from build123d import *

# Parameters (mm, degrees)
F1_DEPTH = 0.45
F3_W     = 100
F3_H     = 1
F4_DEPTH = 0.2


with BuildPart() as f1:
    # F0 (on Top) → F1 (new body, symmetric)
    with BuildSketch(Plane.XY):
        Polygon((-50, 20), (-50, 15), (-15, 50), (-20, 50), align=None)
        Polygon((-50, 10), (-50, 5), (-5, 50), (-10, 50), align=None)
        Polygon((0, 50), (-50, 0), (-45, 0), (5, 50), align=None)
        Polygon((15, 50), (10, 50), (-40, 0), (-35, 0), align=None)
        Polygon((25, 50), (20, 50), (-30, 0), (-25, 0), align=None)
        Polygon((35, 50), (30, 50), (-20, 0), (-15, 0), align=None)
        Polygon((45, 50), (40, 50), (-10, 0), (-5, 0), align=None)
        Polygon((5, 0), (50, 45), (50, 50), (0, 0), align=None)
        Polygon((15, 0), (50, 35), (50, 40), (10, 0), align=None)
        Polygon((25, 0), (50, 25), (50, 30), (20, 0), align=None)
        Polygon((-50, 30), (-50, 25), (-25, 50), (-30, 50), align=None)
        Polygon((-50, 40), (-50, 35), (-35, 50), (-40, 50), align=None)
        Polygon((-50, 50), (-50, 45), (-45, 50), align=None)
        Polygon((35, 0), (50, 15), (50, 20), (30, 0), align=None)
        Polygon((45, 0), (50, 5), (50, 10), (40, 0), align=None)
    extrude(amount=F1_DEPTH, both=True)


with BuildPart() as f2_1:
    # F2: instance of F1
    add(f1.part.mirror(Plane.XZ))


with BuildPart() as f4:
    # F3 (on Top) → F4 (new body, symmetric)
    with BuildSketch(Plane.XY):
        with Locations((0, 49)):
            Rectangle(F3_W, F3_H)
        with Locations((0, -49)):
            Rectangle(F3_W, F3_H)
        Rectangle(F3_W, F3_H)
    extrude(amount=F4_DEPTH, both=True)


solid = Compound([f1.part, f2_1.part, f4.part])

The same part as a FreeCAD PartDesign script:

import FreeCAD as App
import Part
import Sketcher

V = App.Vector


def add_polygon(sketch, points):
    """Adds a closed chain of lines whose ends are joined by coincident constraints."""
    first, n = sketch.GeometryCount, len(points)
    for a, b in zip(points, points[1:] + points[:1]):
        sketch.addGeometry(Part.LineSegment(App.Vector(*a, 0), App.Vector(*b, 0)), False)
    for i in range(n):
        sketch.addConstraint(Sketcher.Constraint("Coincident", first + i, 2, first + (i + 1) % n, 1))

doc = App.newDocument("Part")
params = doc.addObject("Spreadsheet::Sheet", "Params")
for row, (alias, value) in enumerate([
    ("sketch1_width", "5 mm"),
    ("pad1_length", "0.9 mm"),
    ("sketch2_width", "100 mm"),
    ("sketch2_height", "1 mm"),
    ("pad2_length", "0.4 mm"),
], start=1):
    params.set(f"A{row}", alias)
    params.set(f"B{row}", "=" + value)
    params.setAlias(f"B{row}", alias)

body = doc.addObject("PartDesign::Body", "Body")
body.AllowCompound = True

# Sketch on XY plane
sketch1 = doc.addObject("Sketcher::SketchObject", "Sketch")
body.addObject(sketch1)
sketch1.AttachmentSupport = (doc.XY_Plane, [""])
sketch1.MapMode = "FlatFace"
add_polygon(sketch1, [(-50, 20), (-50, 15), (-15, 50), (-20, 50)])  # lines 0-3
add_polygon(sketch1, [(-50, 10), (-50, 5), (-5, 50), (-10, 50)])  # lines 4-7
add_polygon(sketch1, [(0, 50), (-50, 0), (-45, 0), (5, 50)])  # lines 8-11
add_polygon(sketch1, [(15, 50), (10, 50), (-40, 0), (-35, 0)])  # lines 12-15
add_polygon(sketch1, [(25, 50), (20, 50), (-30, 0), (-25, 0)])  # lines 16-19
add_polygon(sketch1, [(35, 50), (30, 50), (-20, 0), (-15, 0)])  # lines 20-23
add_polygon(sketch1, [(45, 50), (40, 50), (-10, 0), (-5, 0)])  # lines 24-27
add_polygon(sketch1, [(5, 0), (50, 45), (50, 50), (0, 0)])  # lines 28-31
add_polygon(sketch1, [(15, 0), (50, 35), (50, 40), (10, 0)])  # lines 32-35
add_polygon(sketch1, [(25, 0), (50, 25), (50, 30), (20, 0)])  # lines 36-39
add_polygon(sketch1, [(-50, 30), (-50, 25), (-25, 50), (-30, 50)])  # lines 40-43
add_polygon(sketch1, [(-50, 40), (-50, 35), (-35, 50), (-40, 50)])  # lines 44-47
add_polygon(sketch1, [(-50, 50), (-50, 45), (-45, 50)])  # lines 48-50
add_polygon(sketch1, [(35, 0), (50, 15), (50, 20), (30, 0)])  # lines 51-54
add_polygon(sketch1, [(45, 0), (50, 5), (50, 10), (40, 0)])  # lines 55-58
sketch1.addConstraint(Sketcher.Constraint("Vertical", 0))
sketch1.addConstraint(Sketcher.Constraint("Horizontal", 2))
sketch1.addConstraint(Sketcher.Constraint("Vertical", 4))
sketch1.addConstraint(Sketcher.Constraint("Horizontal", 6))
sketch1.addConstraint(Sketcher.Constraint("Horizontal", 9))
sketch1.addConstraint(Sketcher.Constraint("Horizontal", 11))
sketch1.addConstraint(Sketcher.Constraint("Horizontal", 12))
sketch1.addConstraint(Sketcher.Constraint("Horizontal", 14))
sketch1.addConstraint(Sketcher.Constraint("Horizontal", 16))
sketch1.addConstraint(Sketcher.Constraint("Horizontal", 18))
sketch1.addConstraint(Sketcher.Constraint("Horizontal", 20))
sketch1.addConstraint(Sketcher.Constraint("Horizontal", 22))
sketch1.addConstraint(Sketcher.Constraint("Horizontal", 24))
sketch1.addConstraint(Sketcher.Constraint("Horizontal", 26))
sketch1.addConstraint(Sketcher.Constraint("Vertical", 29))
sketch1.addConstraint(Sketcher.Constraint("Horizontal", 31))
sketch1.addConstraint(Sketcher.Constraint("Vertical", 33))
sketch1.addConstraint(Sketcher.Constraint("Horizontal", 35))
sketch1.addConstraint(Sketcher.Constraint("Vertical", 37))
sketch1.addConstraint(Sketcher.Constraint("Horizontal", 39))
sketch1.addConstraint(Sketcher.Constraint("Vertical", 40))
sketch1.addConstraint(Sketcher.Constraint("Horizontal", 42))
sketch1.addConstraint(Sketcher.Constraint("Vertical", 44))
sketch1.addConstraint(Sketcher.Constraint("Horizontal", 46))
sketch1.addConstraint(Sketcher.Constraint("Vertical", 48))
sketch1.addConstraint(Sketcher.Constraint("Horizontal", 50))
sketch1.addConstraint(Sketcher.Constraint("Vertical", 52))
sketch1.addConstraint(Sketcher.Constraint("Horizontal", 54))
sketch1.addConstraint(Sketcher.Constraint("Vertical", 56))
sketch1.addConstraint(Sketcher.Constraint("Horizontal", 58))
sketch1.addConstraint(Sketcher.Constraint("Coincident", 30, 2, -1, 1))
sketch1.addConstraint(Sketcher.Constraint("Symmetric", 26, 2, 31, 2, -1, 1))
sketch1.addConstraint(Sketcher.Constraint("Symmetric", 25, 2, 34, 2, -1, 1))
sketch1.addConstraint(Sketcher.Constraint("Symmetric", 22, 2, 35, 2, -1, 1))
sketch1.addConstraint(Sketcher.Constraint("Symmetric", 21, 2, 38, 2, -1, 1))
sketch1.addConstraint(Sketcher.Constraint("Symmetric", 18, 2, 39, 2, -1, 1))
sketch1.addConstraint(Sketcher.Constraint("Symmetric", 17, 2, 53, 2, -1, 1))
sketch1.addConstraint(Sketcher.Constraint("Symmetric", 14, 2, 54, 2, -1, 1))
sketch1.addConstraint(Sketcher.Constraint("Symmetric", 13, 2, 57, 2, -1, 1))
sketch1.addConstraint(Sketcher.Constraint("Symmetric", 9, 2, 58, 2, -1, 1))
sketch1.addConstraint(Sketcher.Constraint("Symmetric", 5, 2, 10, 2, -2))
sketch1.addConstraint(Sketcher.Constraint("Symmetric", 6, 2, 12, 2, -2))
sketch1.addConstraint(Sketcher.Constraint("Symmetric", 1, 2, 15, 2, -2))
sketch1.addConstraint(Sketcher.Constraint("Symmetric", 2, 2, 16, 2, -2))
sketch1.addConstraint(Sketcher.Constraint("Symmetric", 36, 2, 40, 2, -2))
sketch1.addConstraint(Sketcher.Constraint("Symmetric", 19, 2, 41, 2, -2))
sketch1.addConstraint(Sketcher.Constraint("Symmetric", 20, 2, 42, 2, -2))
sketch1.addConstraint(Sketcher.Constraint("Symmetric", 32, 2, 44, 2, -2))
sketch1.addConstraint(Sketcher.Constraint("Symmetric", 23, 2, 45, 2, -2))
sketch1.addConstraint(Sketcher.Constraint("Symmetric", 24, 2, 46, 2, -2))
sketch1.addConstraint(Sketcher.Constraint("Symmetric", 28, 2, 48, 2, -2))
sketch1.addConstraint(Sketcher.Constraint("Symmetric", 27, 2, 49, 2, -2))
sketch1.addConstraint(Sketcher.Constraint("Symmetric", 0, 2, 51, 2, -2))
sketch1.addConstraint(Sketcher.Constraint("Symmetric", 4, 2, 55, 2, -2))
sketch1.addConstraint(Sketcher.Constraint("PointOnObject", 11, 2, -2))
sketch1.addConstraint(Sketcher.Constraint("Parallel", 1, 3))
sketch1.addConstraint(Sketcher.Constraint("Parallel", 3, 5))
sketch1.addConstraint(Sketcher.Constraint("Parallel", 5, 7))
sketch1.addConstraint(Sketcher.Constraint("Parallel", 7, 8))
sketch1.addConstraint(Sketcher.Constraint("Parallel", 8, 10))
sketch1.addConstraint(Sketcher.Constraint("Parallel", 10, 13))
sketch1.addConstraint(Sketcher.Constraint("Parallel", 13, 15))
sketch1.addConstraint(Sketcher.Constraint("Parallel", 15, 17))
sketch1.addConstraint(Sketcher.Constraint("Parallel", 17, 19))
sketch1.addConstraint(Sketcher.Constraint("Parallel", 19, 21))
sketch1.addConstraint(Sketcher.Constraint("Parallel", 21, 23))
sketch1.addConstraint(Sketcher.Constraint("Parallel", 23, 25))
sketch1.addConstraint(Sketcher.Constraint("Parallel", 25, 27))
sketch1.addConstraint(Sketcher.Constraint("Parallel", 27, 28))
sketch1.addConstraint(Sketcher.Constraint("Parallel", 28, 30))
sketch1.addConstraint(Sketcher.Constraint("Parallel", 30, 32))
sketch1.addConstraint(Sketcher.Constraint("Parallel", 32, 34))
sketch1.addConstraint(Sketcher.Constraint("Parallel", 34, 36))
sketch1.addConstraint(Sketcher.Constraint("Parallel", 36, 38))
sketch1.addConstraint(Sketcher.Constraint("Parallel", 38, 41))
sketch1.addConstraint(Sketcher.Constraint("Parallel", 41, 43))
sketch1.addConstraint(Sketcher.Constraint("Parallel", 43, 45))
sketch1.addConstraint(Sketcher.Constraint("Parallel", 45, 47))
sketch1.addConstraint(Sketcher.Constraint("Parallel", 47, 49))
sketch1.addConstraint(Sketcher.Constraint("Parallel", 49, 51))
sketch1.addConstraint(Sketcher.Constraint("Parallel", 51, 53))
sketch1.addConstraint(Sketcher.Constraint("Parallel", 53, 55))
sketch1.addConstraint(Sketcher.Constraint("Parallel", 55, 57))
sketch1.addConstraint(Sketcher.Constraint("Vertical", 2, 2, 21, 2))
sketch1.addConstraint(Sketcher.Constraint("Vertical", 1, 2, 22, 2))
sketch1.addConstraint(Sketcher.Constraint("Vertical", 6, 2, 25, 2))
sketch1.addConstraint(Sketcher.Constraint("Vertical", 5, 2, 26, 2))
sketch1.addConstraint(Sketcher.Constraint("Vertical", 19, 2, 39, 2))
sketch1.addConstraint(Sketcher.Constraint("Equal", 2, 6))
sketch1.addConstraint(Sketcher.Constraint("Equal", 6, 9))
sketch1.addConstraint(Sketcher.Constraint("Equal", 11, 12))
sketch1.addConstraint(Sketcher.Constraint("Equal", 14, 16))
sketch1.addConstraint(Sketcher.Constraint("Equal", 58, 0))
sketch1.addConstraint(Sketcher.Constraint("DistanceX", 2, 2, 2, 1, 5.0))
sketch1.setExpression("Constraints[152]", "Params.sketch1_width")
pad1 = doc.addObject("PartDesign::Pad", "Pad")
body.addObject(pad1)
pad1.Profile = sketch1
pad1.setExpression("Length", "Params.pad1_length")
pad1.Midplane = True
body2 = doc.addObject("PartDesign::Body", "Body001")
body2.AllowCompound = True
doc.recompute()

mirroring = doc.addObject("Part::Mirroring", "Mirroring")
mirroring.Source = body
mirroring.Base = V(0, 0, 0)
mirroring.Normal = V(0, -1, 0)
body2.BaseFeature = mirroring
doc.recompute()
body3 = doc.addObject("PartDesign::Body", "Body002")
body3.AllowCompound = True

# Sketch on XY plane
sketch2 = doc.addObject("Sketcher::SketchObject", "Sketch001")
body3.addObject(sketch2)
sketch2.AttachmentSupport = (doc.getObject("XY_Plane002"), [""])
sketch2.MapMode = "FlatFace"
add_polygon(sketch2, [(-50, 49.5), (-50, 48.5), (50, 48.5), (50, 49.5)])  # lines 0-3
add_polygon(sketch2, [(-50, -48.5), (-50, -49.5), (50, -49.5), (50, -48.5)])  # lines 4-7
add_polygon(sketch2, [(-50, 0.5), (-50, -0.5), (50, -0.5), (50, 0.5)])  # lines 8-11
sketch2.addConstraint(Sketcher.Constraint("Vertical", 0))
sketch2.addConstraint(Sketcher.Constraint("Horizontal", 1))
sketch2.addConstraint(Sketcher.Constraint("Vertical", 2))
sketch2.addConstraint(Sketcher.Constraint("Horizontal", 3))
sketch2.addConstraint(Sketcher.Constraint("Vertical", 4))
sketch2.addConstraint(Sketcher.Constraint("Horizontal", 5))
sketch2.addConstraint(Sketcher.Constraint("Vertical", 6))
sketch2.addConstraint(Sketcher.Constraint("Horizontal", 7))
sketch2.addConstraint(Sketcher.Constraint("Vertical", 8))
sketch2.addConstraint(Sketcher.Constraint("Horizontal", 9))
sketch2.addConstraint(Sketcher.Constraint("Vertical", 10))
sketch2.addConstraint(Sketcher.Constraint("Horizontal", 11))
sketch2.addConstraint(Sketcher.Constraint("Symmetric", 2, 2, 4, 2, -1, 1))
sketch2.addConstraint(Sketcher.Constraint("Symmetric", 0, 2, 6, 2, -1, 1))
sketch2.addConstraint(Sketcher.Constraint("Symmetric", 8, 2, 10, 2, -1, 1))
sketch2.addConstraint(Sketcher.Constraint("Vertical", 3, 2, 4, 2))
sketch2.addConstraint(Sketcher.Constraint("Vertical", 7, 2, 8, 2))
sketch2.addConstraint(Sketcher.Constraint("Equal", 6, 8))
sketch2.addConstraint(Sketcher.Constraint("DistanceX", 1, 1, 1, 2, 100.0))
sketch2.addConstraint(Sketcher.Constraint("DistanceY", 0, 2, 0, 1, 1.0))
sketch2.addConstraint(Sketcher.Constraint("DistanceY", 4, 2, 0, 2, 98.0))
sketch2.setExpression("Constraints[30]", "Params.sketch2_width")
sketch2.setExpression("Constraints[31]", "Params.sketch2_height")
pad2 = doc.addObject("PartDesign::Pad", "Pad001")
body3.addObject(pad2)
pad2.Profile = sketch2
pad2.setExpression("Length", "Params.pad2_length")
pad2.Midplane = True
mirroring.Visibility = False

doc.recompute()
